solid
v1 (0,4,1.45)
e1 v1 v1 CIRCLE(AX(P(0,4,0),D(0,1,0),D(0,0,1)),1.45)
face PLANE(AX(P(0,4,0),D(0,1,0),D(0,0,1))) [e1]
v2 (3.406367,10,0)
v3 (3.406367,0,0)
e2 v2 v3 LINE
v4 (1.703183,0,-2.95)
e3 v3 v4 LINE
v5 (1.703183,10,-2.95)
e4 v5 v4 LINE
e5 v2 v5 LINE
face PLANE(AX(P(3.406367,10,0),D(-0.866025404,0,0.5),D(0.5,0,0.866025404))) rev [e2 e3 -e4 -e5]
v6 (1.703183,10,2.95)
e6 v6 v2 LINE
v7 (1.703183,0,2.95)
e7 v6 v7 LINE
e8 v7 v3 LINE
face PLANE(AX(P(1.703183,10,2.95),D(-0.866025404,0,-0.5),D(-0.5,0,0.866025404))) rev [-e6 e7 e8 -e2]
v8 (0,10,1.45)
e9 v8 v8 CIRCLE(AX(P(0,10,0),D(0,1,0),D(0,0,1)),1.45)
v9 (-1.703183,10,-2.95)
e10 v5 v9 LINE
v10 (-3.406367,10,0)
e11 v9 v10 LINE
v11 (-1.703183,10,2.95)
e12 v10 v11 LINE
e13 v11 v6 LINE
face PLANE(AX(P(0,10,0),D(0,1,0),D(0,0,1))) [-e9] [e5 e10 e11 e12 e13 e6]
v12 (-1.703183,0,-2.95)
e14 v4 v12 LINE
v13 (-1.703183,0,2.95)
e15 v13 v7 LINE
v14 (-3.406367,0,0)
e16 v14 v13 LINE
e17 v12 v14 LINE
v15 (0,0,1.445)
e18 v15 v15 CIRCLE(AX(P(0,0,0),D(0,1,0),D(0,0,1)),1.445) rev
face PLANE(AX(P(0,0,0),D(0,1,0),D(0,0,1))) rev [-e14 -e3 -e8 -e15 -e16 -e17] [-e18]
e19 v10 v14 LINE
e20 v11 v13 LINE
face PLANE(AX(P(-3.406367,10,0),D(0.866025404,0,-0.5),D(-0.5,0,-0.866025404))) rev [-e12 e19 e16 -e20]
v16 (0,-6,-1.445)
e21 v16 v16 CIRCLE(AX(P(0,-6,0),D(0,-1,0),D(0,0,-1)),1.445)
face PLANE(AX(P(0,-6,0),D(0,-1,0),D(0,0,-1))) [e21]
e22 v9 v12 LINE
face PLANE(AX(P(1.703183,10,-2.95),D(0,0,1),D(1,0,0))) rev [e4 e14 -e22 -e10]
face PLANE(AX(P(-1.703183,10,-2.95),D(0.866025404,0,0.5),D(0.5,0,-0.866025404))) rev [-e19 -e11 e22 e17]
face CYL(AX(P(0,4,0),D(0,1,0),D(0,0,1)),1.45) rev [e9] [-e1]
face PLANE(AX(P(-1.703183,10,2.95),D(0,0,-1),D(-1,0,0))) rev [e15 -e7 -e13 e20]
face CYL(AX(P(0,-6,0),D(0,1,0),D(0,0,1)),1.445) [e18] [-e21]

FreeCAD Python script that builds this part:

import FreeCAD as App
import Part
import Sketcher

V = App.Vector
Q = App.Units.Quantity


def add_polygon(sketch, points):
    """Adds a closed chain of lines whose ends are joined by coincident constraints."""
    first, n = sketch.GeometryCount, len(points)
    for a, b in zip(points, points[1:] + points[:1]):
        sketch.addGeometry(Part.LineSegment(App.Vector(*a, 0), App.Vector(*b, 0)), False)
    for i in range(n):
        sketch.addConstraint(Sketcher.Constraint("Coincident", first + i, 2, first + (i + 1) % n, 1))

doc = App.newDocument("Part")
body = doc.addObject("PartDesign::Body", "Body")

# Sketch on XZ plane
sketch1 = body.newObject("Sketcher::SketchObject", "Sketch")
sketch1.AttachmentSupport = (doc.getObject("XZ_Plane"), [""])
sketch1.MapMode = "FlatFace"
add_polygon(sketch1, [(3.4, 0), (1.7, -3), (-1.7, -3), (-3.4, 0), (-1.7, 3), (1.7, 3)])  # lines 0-5
sketch1.addConstraint([
    Sketcher.Constraint("Horizontal", 1),
    Sketcher.Constraint("Horizontal", 4),
    Sketcher.Constraint("Symmetric", 0, 2, 3, 2, -1, 1),
    Sketcher.Constraint("Symmetric", 2, 2, 5, 2, -1, 1),
    Sketcher.Constraint("PointOnObject", 2, 2, -1),
    Sketcher.Constraint("Parallel", 2, 5),
    Sketcher.Constraint("Vertical", 1, 2, 3, 2),
    Sketcher.Constraint("Angle", 0, Q("-120 deg")),
    Sketcher.Constraint("DistanceY", 1, 2, 3, 2, 5.9),
    Sketcher.Constraint("DistanceX", 1, 2, 1, 1, 3.406367),
])
pad1 = body.newObject("PartDesign::Pad", "Pad")
pad1.Profile = sketch1
pad1.Length = 10
pad1.Reversed = True

# Sketch on XZ plane
sketch2 = body.newObject("Sketcher::SketchObject", "Sketch001")
sketch2.AttachmentSupport = (doc.getObject("XZ_Plane"), [""])
sketch2.MapMode = "FlatFace"
sketch2.addGeometry(Part.Circle(V(0, 0, 0), V(0, 0, 1), 1.4), False)
sketch2.addConstraint([
    Sketcher.Constraint("Coincident", 0, 3, -1, 1),
    Sketcher.Constraint("Diameter", 0, 2.89),
])
pad2 = body.newObject("PartDesign::Pad", "Pad001")
pad2.Profile = sketch2
pad2.Length = 6

# Sketch on XZ plane
sketch3 = body.newObject("Sketcher::SketchObject", "Sketch002")
sketch3.AttachmentSupport = (doc.getObject("XZ_Plane"), [""])
sketch3.MapMode = "FlatFace"
sketch3.AttachmentOffset = App.Placement(V(0, 0, -10), App.Rotation())
sketch3.addGeometry(Part.Circle(V(0, 0, 0), V(0, 0, 1), 1.4), False)
sketch3.addConstraint([
    Sketcher.Constraint("Coincident", 0, 3, -1, 1),
    Sketcher.Constraint("Diameter", 0, 2.9),
])
pocket1 = body.newObject("PartDesign::Pocket", "Pocket")
pocket1.Profile = sketch3
pocket1.Length = 6
pocket1.Reversed = True

doc.recompute()
